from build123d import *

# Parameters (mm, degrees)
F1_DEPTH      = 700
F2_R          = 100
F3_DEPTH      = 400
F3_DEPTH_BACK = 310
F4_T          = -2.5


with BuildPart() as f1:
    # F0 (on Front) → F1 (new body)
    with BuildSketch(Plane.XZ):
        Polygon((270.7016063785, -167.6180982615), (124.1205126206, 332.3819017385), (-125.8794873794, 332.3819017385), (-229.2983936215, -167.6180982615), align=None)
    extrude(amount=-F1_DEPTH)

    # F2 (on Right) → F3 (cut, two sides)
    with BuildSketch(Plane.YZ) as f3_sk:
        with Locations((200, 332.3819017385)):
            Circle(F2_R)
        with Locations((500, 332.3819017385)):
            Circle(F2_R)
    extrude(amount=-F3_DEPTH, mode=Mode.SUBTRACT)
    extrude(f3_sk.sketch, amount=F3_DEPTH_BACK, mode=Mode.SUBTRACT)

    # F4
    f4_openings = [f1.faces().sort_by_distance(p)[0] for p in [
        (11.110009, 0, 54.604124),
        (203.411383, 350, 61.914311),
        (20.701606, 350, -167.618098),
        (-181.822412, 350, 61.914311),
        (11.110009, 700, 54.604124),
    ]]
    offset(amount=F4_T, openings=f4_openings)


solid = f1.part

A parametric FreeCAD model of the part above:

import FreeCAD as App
import Part
import Sketcher

V = App.Vector
Q = App.Units.Quantity


def faces_at(feature, points):
    """Names of the faces that lie closest to the given points."""
    faces = feature.Shape.Faces
    near = lambda p: min(range(len(faces)), key=lambda i: faces[i].distToShape(Part.Vertex(*p))[0])
    return sorted({f"Face{near(p) + 1}" for p in points})


def add_polygon(sketch, points):
    """Adds a closed chain of lines whose ends are joined by coincident constraints."""
    first, n = sketch.GeometryCount, len(points)
    for a, b in zip(points, points[1:] + points[:1]):
        sketch.addGeometry(Part.LineSegment(App.Vector(*a, 0), App.Vector(*b, 0)), False)
    for i in range(n):
        sketch.addConstraint(Sketcher.Constraint("Coincident", first + i, 2, first + (i + 1) % n, 1))

doc = App.newDocument("Part")
params = doc.addObject("Spreadsheet::Sheet", "Params")
for row, (alias, value) in enumerate([
    ("sketch1_width", "250 mm"),
    ("sketch1_width2", "500 mm"),
    ("pad1_length", "700 mm"),
    ("sketch2_diameter", "200 mm"),
    ("thickness_wall", "2.5 mm"),
], start=1):
    params.set(f"A{row}", alias)
    params.set(f"B{row}", "=" + value)
    params.setAlias(f"B{row}", alias)

body = doc.addObject("PartDesign::Body", "Body")

# Sketch on XZ plane
sketch1 = body.newObject("Sketcher::SketchObject", "Sketch")
sketch1.AttachmentSupport = (doc.getObject("XZ_Plane"), [""])
sketch1.MapMode = "FlatFace"
add_polygon(sketch1, [(271, -168), (124, 332), (-126, 332), (-229, -168)])  # lines 0-3
sketch1.addConstraint(Sketcher.Constraint("Horizontal", 1))
sketch1.addConstraint(Sketcher.Constraint("Horizontal", 3))
sketch1.addConstraint(Sketcher.Constraint("DistanceX", 1, 2, 1, 1, Q("250 mm")))
sketch1.addConstraint(Sketcher.Constraint("DistanceX", 3, 1, 3, 2, Q("500 mm")))
sketch1.addConstraint(Sketcher.Constraint("DistanceY", 2, 2, 1, 2, Q("500 mm")))
sketch1.addConstraint(Sketcher.Constraint("Distance", 0, Q("521.043201 mm")))
sketch1.addConstraint(Sketcher.Constraint("DistanceY", -1, 1, 0, 2, Q("332.381902 mm")))
sketch1.addConstraint(Sketcher.Constraint("DistanceX", -1, 1, 0, 2, Q("124.120513 mm")))
sketch1.setExpression("Constraints[6]", "Params.sketch1_width")
sketch1.setExpression("Constraints[7]", "Params.sketch1_width2")
pad1 = body.newObject("PartDesign::Pad", "Pad")
pad1.Profile = sketch1
pad1.setExpression("Length", "Params.pad1_length")
pad1.Reversed = True

# Sketch on YZ plane
sketch2 = body.newObject("Sketcher::SketchObject", "Sketch001")
sketch2.AttachmentSupport = (doc.getObject("YZ_Plane"), [""])
sketch2.MapMode = "FlatFace"
sketch2.addGeometry(Part.Circle(V(200, 332, 0), V(0, 0, 1), 100), False)
sketch2.addGeometry(Part.Circle(V(500, 332, 0), V(0, 0, 1), 100), False)
sketch2.addConstraint(Sketcher.Constraint("Equal", 0, 1))
sketch2.addConstraint(Sketcher.Constraint("Horizontal", 0, 3, 1, 3))
sketch2.addConstraint(Sketcher.Constraint("Diameter", 0, Q("200 mm")))
sketch2.addConstraint(Sketcher.Constraint("DistanceX", -1, 1, 0, 3, Q("200 mm")))
sketch2.addConstraint(Sketcher.Constraint("DistanceX", -1, 1, 1, 3, Q("500 mm")))
sketch2.addConstraint(Sketcher.Constraint("DistanceY", -1, 1, 0, 3, Q("332.381902 mm")))
sketch2.setExpression("Constraints[2]", "Params.sketch2_diameter")
pocket1 = body.newObject("PartDesign::Pocket", "Pocket")
pocket1.Profile = sketch2
pocket1.Type = "ThroughAll"
pocket1.Midplane = True
doc.recompute()

thickness = body.newObject("PartDesign::Thickness", "Thickness")
thickness.Base = (pocket1, faces_at(pocket1, [
    (20.702, 0, 82.382),
    (197.411, 350, 82.382),
    (20.702, 350, -167.618),
    (-177.589, 350, 82.382),
    (20.702, 700, 82.382),
]))
thickness.setExpression("Value", "Params.thickness_wall")
thickness.Reversed = True
thickness.Join = "Arc"

doc.recompute()
